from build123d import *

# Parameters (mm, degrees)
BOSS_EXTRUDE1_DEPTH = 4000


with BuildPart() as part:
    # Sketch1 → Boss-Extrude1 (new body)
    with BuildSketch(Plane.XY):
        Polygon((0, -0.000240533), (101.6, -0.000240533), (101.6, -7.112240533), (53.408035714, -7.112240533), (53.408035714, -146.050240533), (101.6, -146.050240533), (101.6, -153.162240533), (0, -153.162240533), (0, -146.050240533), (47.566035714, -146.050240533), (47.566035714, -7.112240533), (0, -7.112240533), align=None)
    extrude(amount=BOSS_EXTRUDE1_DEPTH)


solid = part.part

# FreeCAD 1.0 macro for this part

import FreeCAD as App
import Part
import Sketcher
Q = App.Units.Quantity


def add_polygon(sketch, points):
    """Adds a closed chain of lines whose ends are joined by coincident constraints."""
    first, n = sketch.GeometryCount, len(points)
    for a, b in zip(points, points[1:] + points[:1]):
        sketch.addGeometry(Part.LineSegment(App.Vector(*a, 0), App.Vector(*b, 0)), False)
    for i in range(n):
        sketch.addConstraint(Sketcher.Constraint("Coincident", first + i, 2, first + (i + 1) % n, 1))

doc = App.newDocument("Part")
body = doc.addObject("PartDesign::Body", "Body")

# Sketch on XY plane
sketch1 = body.newObject("Sketcher::SketchObject", "Sketch")
sketch1.AttachmentSupport = (doc.getObject("XY_Plane"), [""])
sketch1.MapMode = "FlatFace"
add_polygon(sketch1, [(102, 0), (0, 0), (0, -7), (48, -7), (48, -146), (0, -146), (0, -153), (102, -153), (102, -146), (53, -146), (53, -7), (102, -7)])  # lines 0-11
sketch1.addConstraint([
    Sketcher.Constraint("Horizontal", 0),
    Sketcher.Constraint("Vertical", 1),
    Sketcher.Constraint("Horizontal", 2),
    Sketcher.Constraint("Vertical", 3),
    Sketcher.Constraint("Horizontal", 4),
    Sketcher.Constraint("Vertical", 5),
    Sketcher.Constraint("Horizontal", 6),
    Sketcher.Constraint("Vertical", 7),
    Sketcher.Constraint("Horizontal", 8),
    Sketcher.Constraint("Vertical", 9),
    Sketcher.Constraint("Horizontal", 10),
    Sketcher.Constraint("Vertical", 11),
    Sketcher.Constraint("PointOnObject", 0, 2, -2),
    Sketcher.Constraint("PointOnObject", 4, 2, -2),
    Sketcher.Constraint("Horizontal", 4, 2, 7, 2),
    Sketcher.Constraint("Horizontal", 2, 2, 9, 2),
    Sketcher.Constraint("Vertical", 7, 2, 10, 2),
    Sketcher.Constraint("Equal", 1, 5),
    Sketcher.Constraint("DistanceX", 0, 2, 0, 1, Q("4 in")),
    Sketcher.Constraint("DistanceY", 1, 2, 1, 1, Q("0.28 in")),
    Sketcher.Constraint("DistanceY", 3, 2, 3, 1, Q("5.47 in")),
    Sketcher.Constraint("DistanceX", 3, 2, 8, 2, Q("0.23 in")),
    Sketcher.Constraint("DistanceX", 2, 1, 2, 2, Q("47.566036 mm")),
    Sketcher.Constraint("DistanceY", 0, 2, -1, 1, Q("0.000241 mm")),
])
pad1 = body.newObject("PartDesign::Pad", "Pad")
pad1.Profile = sketch1
pad1.Length = 4000

doc.recompute()
